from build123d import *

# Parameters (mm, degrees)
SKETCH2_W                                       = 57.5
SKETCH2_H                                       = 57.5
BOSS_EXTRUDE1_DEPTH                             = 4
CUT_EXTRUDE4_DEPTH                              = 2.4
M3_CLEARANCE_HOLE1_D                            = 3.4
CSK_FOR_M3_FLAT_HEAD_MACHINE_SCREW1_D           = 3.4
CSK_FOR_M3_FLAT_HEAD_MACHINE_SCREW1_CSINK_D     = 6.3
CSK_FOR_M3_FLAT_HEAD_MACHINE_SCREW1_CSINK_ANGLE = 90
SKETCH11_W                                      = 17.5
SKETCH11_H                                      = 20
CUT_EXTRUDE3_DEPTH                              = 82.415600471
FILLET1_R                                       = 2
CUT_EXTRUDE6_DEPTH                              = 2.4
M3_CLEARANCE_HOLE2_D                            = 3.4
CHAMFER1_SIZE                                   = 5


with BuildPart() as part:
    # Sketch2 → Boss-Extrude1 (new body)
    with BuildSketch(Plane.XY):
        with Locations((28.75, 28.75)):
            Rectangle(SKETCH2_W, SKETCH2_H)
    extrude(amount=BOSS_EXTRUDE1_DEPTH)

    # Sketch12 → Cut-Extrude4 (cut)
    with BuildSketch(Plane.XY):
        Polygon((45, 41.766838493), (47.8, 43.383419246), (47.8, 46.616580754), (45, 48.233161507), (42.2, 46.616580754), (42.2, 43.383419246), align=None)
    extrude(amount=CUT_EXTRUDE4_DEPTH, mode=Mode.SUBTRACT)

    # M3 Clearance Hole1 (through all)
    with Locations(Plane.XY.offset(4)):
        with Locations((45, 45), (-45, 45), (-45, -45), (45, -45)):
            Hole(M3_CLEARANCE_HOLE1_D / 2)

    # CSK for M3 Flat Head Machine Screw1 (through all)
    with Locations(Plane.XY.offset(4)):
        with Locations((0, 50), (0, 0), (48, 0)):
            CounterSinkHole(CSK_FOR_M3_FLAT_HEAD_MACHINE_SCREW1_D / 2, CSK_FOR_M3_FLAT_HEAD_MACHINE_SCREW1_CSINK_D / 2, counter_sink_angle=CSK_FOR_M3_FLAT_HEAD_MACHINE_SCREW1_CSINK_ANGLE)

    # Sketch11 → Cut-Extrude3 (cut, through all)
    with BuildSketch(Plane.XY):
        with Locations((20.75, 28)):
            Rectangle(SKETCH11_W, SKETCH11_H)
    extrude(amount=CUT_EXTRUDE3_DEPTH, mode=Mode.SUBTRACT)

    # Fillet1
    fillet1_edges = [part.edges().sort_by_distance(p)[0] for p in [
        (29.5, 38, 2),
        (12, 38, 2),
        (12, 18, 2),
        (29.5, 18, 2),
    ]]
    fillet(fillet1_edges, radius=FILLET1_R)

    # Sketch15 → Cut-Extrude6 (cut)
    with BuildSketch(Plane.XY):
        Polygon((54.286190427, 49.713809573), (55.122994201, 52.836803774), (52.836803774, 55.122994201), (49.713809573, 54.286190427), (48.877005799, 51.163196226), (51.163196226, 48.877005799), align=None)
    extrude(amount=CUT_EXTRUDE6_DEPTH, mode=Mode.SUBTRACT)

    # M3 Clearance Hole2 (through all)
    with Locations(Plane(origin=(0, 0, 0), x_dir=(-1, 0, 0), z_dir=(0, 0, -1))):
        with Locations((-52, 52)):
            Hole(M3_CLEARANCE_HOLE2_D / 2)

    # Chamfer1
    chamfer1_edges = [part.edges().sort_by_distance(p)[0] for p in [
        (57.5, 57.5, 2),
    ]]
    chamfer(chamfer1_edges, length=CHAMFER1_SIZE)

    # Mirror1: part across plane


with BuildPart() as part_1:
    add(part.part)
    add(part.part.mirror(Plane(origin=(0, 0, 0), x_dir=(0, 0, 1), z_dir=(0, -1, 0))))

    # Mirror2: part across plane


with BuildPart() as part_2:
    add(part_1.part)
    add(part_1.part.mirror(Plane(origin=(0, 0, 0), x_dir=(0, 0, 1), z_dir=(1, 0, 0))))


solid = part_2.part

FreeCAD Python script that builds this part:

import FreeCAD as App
import Part
import Sketcher

V = App.Vector
Q = App.Units.Quantity


def edges_at(feature, points):
    """Names of the edges that pass closest to the given points."""
    edges = feature.Shape.Edges
    near = lambda p: min(range(len(edges)), key=lambda i: edges[i].distToShape(Part.Vertex(*p))[0])
    return sorted({f"Edge{near(p) + 1}" for p in points})

doc = App.newDocument("Part")
body = doc.addObject("PartDesign::Body", "Body")

sketch1 = body.newObject("Sketcher::SketchObject", "Sketch")
sketch1.AttachmentSupport = (doc.getObject("XY_Plane"), [""])
sketch1.MapMode = "FlatFace"
sketch1.addGeometry(Part.LineSegment(V(0, 58, 0), V(0, 0, 0)), False)
sketch1.addGeometry(Part.LineSegment(V(0, 0, 0), V(58, 0, 0)), False)
sketch1.addGeometry(Part.LineSegment(V(58, 0, 0), V(58, 58, 0)), False)
sketch1.addGeometry(Part.LineSegment(V(58, 58, 0), V(0, 58, 0)), False)
sketch1.addConstraint(Sketcher.Constraint("Coincident", 0, 2, 1, 1))
sketch1.addConstraint(Sketcher.Constraint("Coincident", 1, 2, 2, 1))
sketch1.addConstraint(Sketcher.Constraint("Coincident", 2, 2, 3, 1))
sketch1.addConstraint(Sketcher.Constraint("Coincident", 3, 2, 0, 1))
sketch1.addConstraint(Sketcher.Constraint("Vertical", 0))
sketch1.addConstraint(Sketcher.Constraint("Horizontal", 1))
sketch1.addConstraint(Sketcher.Constraint("Vertical", 2))
sketch1.addConstraint(Sketcher.Constraint("Horizontal", 3))
sketch1.addConstraint(Sketcher.Constraint("Coincident", 0, 2, -1, 1))
sketch1.addConstraint(Sketcher.Constraint("Equal", 3, 0))
sketch1.addConstraint(Sketcher.Constraint("DistanceX", 1, 1, 1, 2, Q("57.5 mm")))
pad1 = body.newObject("PartDesign::Pad", "Pad")
pad1.Profile = sketch1
pad1.Length = 4

sketch2 = body.newObject("Sketcher::SketchObject", "Sketch001")
sketch2.AttachmentSupport = (doc.getObject("XY_Plane"), [""])
sketch2.MapMode = "FlatFace"
sketch2.addGeometry(Part.LineSegment(V(45, 41.8, 0), V(47.8, 43.4, 0)), False)
sketch2.addGeometry(Part.LineSegment(V(47.8, 43.4, 0), V(47.8, 46.6, 0)), False)
sketch2.addGeometry(Part.LineSegment(V(47.8, 46.6, 0), V(45, 48.2, 0)), False)
sketch2.addGeometry(Part.LineSegment(V(45, 48.2, 0), V(42.2, 46.6, 0)), False)
sketch2.addGeometry(Part.LineSegment(V(42.2, 46.6, 0), V(42.2, 43.4, 0)), False)
sketch2.addGeometry(Part.LineSegment(V(42.2, 43.4, 0), V(45, 41.8, 0)), False)
sketch2.addConstraint(Sketcher.Constraint("Coincident", 0, 2, 1, 1))
sketch2.addConstraint(Sketcher.Constraint("Coincident", 1, 2, 2, 1))
sketch2.addConstraint(Sketcher.Constraint("Coincident", 2, 2, 3, 1))
sketch2.addConstraint(Sketcher.Constraint("Coincident", 3, 2, 4, 1))
sketch2.addConstraint(Sketcher.Constraint("Coincident", 4, 2, 5, 1))
sketch2.addConstraint(Sketcher.Constraint("Coincident", 5, 2, 0, 1))
sketch2.addConstraint(Sketcher.Constraint("Vertical", 1))
sketch2.addConstraint(Sketcher.Constraint("Vertical", 4))
sketch2.addConstraint(Sketcher.Constraint("Parallel", 0, 3))
sketch2.addConstraint(Sketcher.Constraint("Parallel", 2, 5))
sketch2.addConstraint(Sketcher.Constraint("Horizontal", 1, 2, 3, 2))
sketch2.addConstraint(Sketcher.Constraint("Horizontal", 0, 2, 4, 2))
sketch2.addConstraint(Sketcher.Constraint("Vertical", 2, 2, 5, 2))
sketch2.addConstraint(Sketcher.Constraint("Angle", 0, Q("30 deg")))
sketch2.addConstraint(Sketcher.Constraint("DistanceX", -1, 1, 2, 2, Q("45 mm")))
sketch2.addConstraint(Sketcher.Constraint("DistanceX", -1, 1, 0, 2, Q("47.8 mm")))
sketch2.addConstraint(Sketcher.Constraint("DistanceY", 1, 1, 1, 2, Q("3.233162 mm")))
sketch2.addConstraint(Sketcher.Constraint("DistanceY", -1, 1, 0, 2, Q("43.383419 mm")))
pocket1 = body.newObject("PartDesign::Pocket", "Pocket")
pocket1.Profile = sketch2
pocket1.Length = 2.4
pocket1.Reversed = True

sketch3 = body.newObject("Sketcher::SketchObject", "Sketch002")
sketch3.AttachmentSupport = (doc.getObject("XY_Plane"), [""])
sketch3.MapMode = "FlatFace"
sketch3.AttachmentOffset = App.Placement(V(0, 0, 4), App.Rotation())
sketch3.addGeometry(Part.Circle(V(45, 45, 0), V(0, 0, 1), 1.7), False)
sketch3.addGeometry(Part.Circle(V(-45, 45, 0), V(0, 0, 1), 1.7), False)
sketch3.addGeometry(Part.Circle(V(-45, -45, 0), V(0, 0, 1), 1.7), False)
sketch3.addGeometry(Part.Circle(V(45, -45, 0), V(0, 0, 1), 1.7), False)
sketch3.addConstraint(Sketcher.Constraint("Equal", 0, 1))
sketch3.addConstraint(Sketcher.Constraint("Equal", 1, 2))
sketch3.addConstraint(Sketcher.Constraint("Equal", 2, 3))
sketch3.addConstraint(Sketcher.Constraint("Symmetric", 0, 3, 2, 3, -1, 1))
sketch3.addConstraint(Sketcher.Constraint("Symmetric", 1, 3, 3, 3, -1, 1))
sketch3.addConstraint(Sketcher.Constraint("Symmetric", 0, 3, 1, 3, -2))
sketch3.addConstraint(Sketcher.Constraint("Diameter", 0, Q("3.4 mm")))
sketch3.addConstraint(Sketcher.Constraint("DistanceX", -1, 1, 0, 3, Q("45 mm")))
sketch3.addConstraint(Sketcher.Constraint("DistanceY", -1, 1, 0, 3, Q("45 mm")))
doc.recompute()
hole = body.newObject("PartDesign::Hole", "Hole")
hole.Profile = sketch3
hole.ThreadType = "None"
hole.Diameter = 3.4
hole.DepthType = "ThroughAll"

sketch4 = body.newObject("Sketcher::SketchObject", "Sketch003")
sketch4.AttachmentSupport = (doc.getObject("XY_Plane"), [""])
sketch4.MapMode = "FlatFace"
sketch4.AttachmentOffset = App.Placement(V(0, 0, 4), App.Rotation())
sketch4.addGeometry(Part.Circle(V(0, 50, 0), V(0, 0, 1), 1.7), False)
sketch4.addGeometry(Part.Circle(V(0, 0, 0), V(0, 0, 1), 1.7), False)
sketch4.addGeometry(Part.Circle(V(48, 0, 0), V(0, 0, 1), 1.7), False)
sketch4.addConstraint(Sketcher.Constraint("Coincident", 1, 3, -1, 1))
sketch4.addConstraint(Sketcher.Constraint("Equal", 0, 1))
sketch4.addConstraint(Sketcher.Constraint("Equal", 1, 2))
sketch4.addConstraint(Sketcher.Constraint("PointOnObject", 0, 3, -2))
sketch4.addConstraint(Sketcher.Constraint("PointOnObject", 2, 3, -1))
sketch4.addConstraint(Sketcher.Constraint("Diameter", 0, Q("3.4 mm")))
sketch4.addConstraint(Sketcher.Constraint("DistanceY", -1, 1, 0, 3, Q("50 mm")))
sketch4.addConstraint(Sketcher.Constraint("DistanceX", -1, 1, 2, 3, Q("48 mm")))
doc.recompute()
hole2 = body.newObject("PartDesign::Hole", "Hole001")
hole2.Profile = sketch4
hole2.ThreadType = "None"
hole2.Diameter = 3.4
hole2.DepthType = "ThroughAll"
hole2.HoleCutType = "Countersink"
hole2.HoleCutDiameter = 6.3
hole2.HoleCutCountersinkAngle = 90

sketch5 = body.newObject("Sketcher::SketchObject", "Sketch004")
sketch5.AttachmentSupport = (doc.getObject("XY_Plane"), [""])
sketch5.MapMode = "FlatFace"
sketch5.addGeometry(Part.LineSegment(V(12, 38, 0), V(12, 18, 0)), False)
sketch5.addGeometry(Part.LineSegment(V(12, 18, 0), V(30, 18, 0)), False)
sketch5.addGeometry(Part.LineSegment(V(30, 18, 0), V(30, 38, 0)), False)
sketch5.addGeometry(Part.LineSegment(V(30, 38, 0), V(12, 38, 0)), False)
sketch5.addConstraint(Sketcher.Constraint("Coincident", 0, 2, 1, 1))
sketch5.addConstraint(Sketcher.Constraint("Coincident", 1, 2, 2, 1))
sketch5.addConstraint(Sketcher.Constraint("Coincident", 2, 2, 3, 1))
sketch5.addConstraint(Sketcher.Constraint("Coincident", 3, 2, 0, 1))
sketch5.addConstraint(Sketcher.Constraint("Vertical", 0))
sketch5.addConstraint(Sketcher.Constraint("Horizontal", 1))
sketch5.addConstraint(Sketcher.Constraint("Vertical", 2))
sketch5.addConstraint(Sketcher.Constraint("Horizontal", 3))
sketch5.addConstraint(Sketcher.Constraint("DistanceY", 0, 2, 0, 1, Q("20 mm")))
sketch5.addConstraint(Sketcher.Constraint("DistanceX", 1, 1, 1, 2, Q("17.5 mm")))
sketch5.addConstraint(Sketcher.Constraint("DistanceX", -1, 1, 0, 2, Q("12 mm")))
sketch5.addConstraint(Sketcher.Constraint("DistanceY", -1, 1, 0, 2, Q("18 mm")))
pocket2 = body.newObject("PartDesign::Pocket", "Pocket001")
pocket2.Profile = sketch5
pocket2.Type = "ThroughAll"
pocket2.Reversed = True
doc.recompute()

fillet = body.newObject("PartDesign::Fillet", "Fillet")
fillet.Base = (pocket2, edges_at(pocket2, [
    (29.5, 38, 2),
    (12, 38, 2),
    (12, 18, 2),
    (29.5, 18, 2),
]))
fillet.Radius = 2

sketch6 = body.newObject("Sketcher::SketchObject", "Sketch005")
sketch6.AttachmentSupport = (doc.getObject("XY_Plane"), [""])
sketch6.MapMode = "FlatFace"
sketch6.addGeometry(Part.LineSegment(V(54.3, 49.7, 0), V(55.1, 52.8, 0)), False)
sketch6.addGeometry(Part.LineSegment(V(55.1, 52.8, 0), V(52.8, 55.1, 0)), False)
sketch6.addGeometry(Part.LineSegment(V(52.8, 55.1, 0), V(49.7, 54.3, 0)), False)
sketch6.addGeometry(Part.LineSegment(V(49.7, 54.3, 0), V(48.9, 51.2, 0)), False)
sketch6.addGeometry(Part.LineSegment(V(48.9, 51.2, 0), V(51.2, 48.9, 0)), False)
sketch6.addGeometry(Part.LineSegment(V(51.2, 48.9, 0), V(54.3, 49.7, 0)), False)
sketch6.addConstraint(Sketcher.Constraint("Coincident", 0, 2, 1, 1))
sketch6.addConstraint(Sketcher.Constraint("Coincident", 1, 2, 2, 1))
sketch6.addConstraint(Sketcher.Constraint("Coincident", 2, 2, 3, 1))
sketch6.addConstraint(Sketcher.Constraint("Coincident", 3, 2, 4, 1))
sketch6.addConstraint(Sketcher.Constraint("Coincident", 4, 2, 5, 1))
sketch6.addConstraint(Sketcher.Constraint("Coincident", 5, 2, 0, 1))
sketch6.addConstraint(Sketcher.Constraint("Parallel", 0, 3))
sketch6.addConstraint(Sketcher.Constraint("Parallel", 1, 4))
sketch6.addConstraint(Sketcher.Constraint("Parallel", 2, 5))
sketch6.addConstraint(Sketcher.Constraint("Equal", 0, 1))
sketch6.addConstraint(Sketcher.Constraint("Equal", 1, 2))
sketch6.addConstraint(Sketcher.Constraint("Equal", 2, 3))
sketch6.addConstraint(Sketcher.Constraint("Angle", 0, Q("75 deg")))
sketch6.addConstraint(Sketcher.Constraint("Angle", 1, Q("135 deg")))
sketch6.addConstraint(Sketcher.Constraint("Angle", 2, Q("-165 deg")))
sketch6.addConstraint(Sketcher.Constraint("Distance", 0, Q("3.233162 mm")))
sketch6.addConstraint(Sketcher.Constraint("DistanceX", -1, 1, 2, 2, Q("49.71381 mm")))
sketch6.addConstraint(Sketcher.Constraint("DistanceY", -1, 1, 2, 2, Q("54.28619 mm")))
pocket3 = body.newObject("PartDesign::Pocket", "Pocket002")
pocket3.Profile = sketch6
pocket3.Length = 2.4
pocket3.Reversed = True

sketch7 = body.newObject("Sketcher::SketchObject", "Sketch006")
sketch7.AttachmentSupport = (doc.getObject("XY_Plane"), [""])
sketch7.MapMode = "FlatFace"
sketch7.addGeometry(Part.Circle(V(52, 52, 0), V(0, 0, 1), 1.7), False)
sketch7.addConstraint(Sketcher.Constraint("Diameter", 0, Q("3.4 mm")))
sketch7.addConstraint(Sketcher.Constraint("DistanceX", -1, 1, 0, 3, Q("52 mm")))
sketch7.addConstraint(Sketcher.Constraint("DistanceY", -1, 1, 0, 3, Q("52 mm")))
doc.recompute()
hole3 = body.newObject("PartDesign::Hole", "Hole002")
hole3.Profile = sketch7
hole3.ThreadType = "None"
hole3.Diameter = 3.4
hole3.DepthType = "ThroughAll"
hole3.Reversed = True
doc.recompute()

chamfer = body.newObject("PartDesign::Chamfer", "Chamfer")
chamfer.Base = (hole3, edges_at(hole3, [(57.5, 57.5, 2)]))
chamfer.Size = 5
body2 = doc.addObject("PartDesign::Body", "Body001")
doc.recompute()

body2.BaseFeature = body
doc.recompute()

mirroring = doc.addObject("Part::Mirroring", "Mirroring")
mirroring.Source = body
mirroring.Base = V(0, 0, 0)
mirroring.Normal = V(0, -1, 0)
body3 = doc.addObject("PartDesign::Body", "Body002")
body3.BaseFeature = mirroring
boolean = body2.newObject("PartDesign::Boolean", "Boolean")
boolean.Type = "Fuse"
boolean.addObjects([body3])
doc.recompute()
body4 = doc.addObject("PartDesign::Body", "Body003")
doc.recompute()

body4.BaseFeature = body2
doc.recompute()

mirroring2 = doc.addObject("Part::Mirroring", "Mirroring001")
mirroring2.Source = body2
mirroring2.Base = V(0, 0, 0)
mirroring2.Normal = V(1, 0, 0)
body5 = doc.addObject("PartDesign::Body", "Body004")
body5.BaseFeature = mirroring2
boolean2 = body4.newObject("PartDesign::Boolean", "Boolean001")
boolean2.Type = "Fuse"
boolean2.addObjects([body5])
doc.recompute()
mirroring.Visibility = False
mirroring2.Visibility = False

doc.recompute()
